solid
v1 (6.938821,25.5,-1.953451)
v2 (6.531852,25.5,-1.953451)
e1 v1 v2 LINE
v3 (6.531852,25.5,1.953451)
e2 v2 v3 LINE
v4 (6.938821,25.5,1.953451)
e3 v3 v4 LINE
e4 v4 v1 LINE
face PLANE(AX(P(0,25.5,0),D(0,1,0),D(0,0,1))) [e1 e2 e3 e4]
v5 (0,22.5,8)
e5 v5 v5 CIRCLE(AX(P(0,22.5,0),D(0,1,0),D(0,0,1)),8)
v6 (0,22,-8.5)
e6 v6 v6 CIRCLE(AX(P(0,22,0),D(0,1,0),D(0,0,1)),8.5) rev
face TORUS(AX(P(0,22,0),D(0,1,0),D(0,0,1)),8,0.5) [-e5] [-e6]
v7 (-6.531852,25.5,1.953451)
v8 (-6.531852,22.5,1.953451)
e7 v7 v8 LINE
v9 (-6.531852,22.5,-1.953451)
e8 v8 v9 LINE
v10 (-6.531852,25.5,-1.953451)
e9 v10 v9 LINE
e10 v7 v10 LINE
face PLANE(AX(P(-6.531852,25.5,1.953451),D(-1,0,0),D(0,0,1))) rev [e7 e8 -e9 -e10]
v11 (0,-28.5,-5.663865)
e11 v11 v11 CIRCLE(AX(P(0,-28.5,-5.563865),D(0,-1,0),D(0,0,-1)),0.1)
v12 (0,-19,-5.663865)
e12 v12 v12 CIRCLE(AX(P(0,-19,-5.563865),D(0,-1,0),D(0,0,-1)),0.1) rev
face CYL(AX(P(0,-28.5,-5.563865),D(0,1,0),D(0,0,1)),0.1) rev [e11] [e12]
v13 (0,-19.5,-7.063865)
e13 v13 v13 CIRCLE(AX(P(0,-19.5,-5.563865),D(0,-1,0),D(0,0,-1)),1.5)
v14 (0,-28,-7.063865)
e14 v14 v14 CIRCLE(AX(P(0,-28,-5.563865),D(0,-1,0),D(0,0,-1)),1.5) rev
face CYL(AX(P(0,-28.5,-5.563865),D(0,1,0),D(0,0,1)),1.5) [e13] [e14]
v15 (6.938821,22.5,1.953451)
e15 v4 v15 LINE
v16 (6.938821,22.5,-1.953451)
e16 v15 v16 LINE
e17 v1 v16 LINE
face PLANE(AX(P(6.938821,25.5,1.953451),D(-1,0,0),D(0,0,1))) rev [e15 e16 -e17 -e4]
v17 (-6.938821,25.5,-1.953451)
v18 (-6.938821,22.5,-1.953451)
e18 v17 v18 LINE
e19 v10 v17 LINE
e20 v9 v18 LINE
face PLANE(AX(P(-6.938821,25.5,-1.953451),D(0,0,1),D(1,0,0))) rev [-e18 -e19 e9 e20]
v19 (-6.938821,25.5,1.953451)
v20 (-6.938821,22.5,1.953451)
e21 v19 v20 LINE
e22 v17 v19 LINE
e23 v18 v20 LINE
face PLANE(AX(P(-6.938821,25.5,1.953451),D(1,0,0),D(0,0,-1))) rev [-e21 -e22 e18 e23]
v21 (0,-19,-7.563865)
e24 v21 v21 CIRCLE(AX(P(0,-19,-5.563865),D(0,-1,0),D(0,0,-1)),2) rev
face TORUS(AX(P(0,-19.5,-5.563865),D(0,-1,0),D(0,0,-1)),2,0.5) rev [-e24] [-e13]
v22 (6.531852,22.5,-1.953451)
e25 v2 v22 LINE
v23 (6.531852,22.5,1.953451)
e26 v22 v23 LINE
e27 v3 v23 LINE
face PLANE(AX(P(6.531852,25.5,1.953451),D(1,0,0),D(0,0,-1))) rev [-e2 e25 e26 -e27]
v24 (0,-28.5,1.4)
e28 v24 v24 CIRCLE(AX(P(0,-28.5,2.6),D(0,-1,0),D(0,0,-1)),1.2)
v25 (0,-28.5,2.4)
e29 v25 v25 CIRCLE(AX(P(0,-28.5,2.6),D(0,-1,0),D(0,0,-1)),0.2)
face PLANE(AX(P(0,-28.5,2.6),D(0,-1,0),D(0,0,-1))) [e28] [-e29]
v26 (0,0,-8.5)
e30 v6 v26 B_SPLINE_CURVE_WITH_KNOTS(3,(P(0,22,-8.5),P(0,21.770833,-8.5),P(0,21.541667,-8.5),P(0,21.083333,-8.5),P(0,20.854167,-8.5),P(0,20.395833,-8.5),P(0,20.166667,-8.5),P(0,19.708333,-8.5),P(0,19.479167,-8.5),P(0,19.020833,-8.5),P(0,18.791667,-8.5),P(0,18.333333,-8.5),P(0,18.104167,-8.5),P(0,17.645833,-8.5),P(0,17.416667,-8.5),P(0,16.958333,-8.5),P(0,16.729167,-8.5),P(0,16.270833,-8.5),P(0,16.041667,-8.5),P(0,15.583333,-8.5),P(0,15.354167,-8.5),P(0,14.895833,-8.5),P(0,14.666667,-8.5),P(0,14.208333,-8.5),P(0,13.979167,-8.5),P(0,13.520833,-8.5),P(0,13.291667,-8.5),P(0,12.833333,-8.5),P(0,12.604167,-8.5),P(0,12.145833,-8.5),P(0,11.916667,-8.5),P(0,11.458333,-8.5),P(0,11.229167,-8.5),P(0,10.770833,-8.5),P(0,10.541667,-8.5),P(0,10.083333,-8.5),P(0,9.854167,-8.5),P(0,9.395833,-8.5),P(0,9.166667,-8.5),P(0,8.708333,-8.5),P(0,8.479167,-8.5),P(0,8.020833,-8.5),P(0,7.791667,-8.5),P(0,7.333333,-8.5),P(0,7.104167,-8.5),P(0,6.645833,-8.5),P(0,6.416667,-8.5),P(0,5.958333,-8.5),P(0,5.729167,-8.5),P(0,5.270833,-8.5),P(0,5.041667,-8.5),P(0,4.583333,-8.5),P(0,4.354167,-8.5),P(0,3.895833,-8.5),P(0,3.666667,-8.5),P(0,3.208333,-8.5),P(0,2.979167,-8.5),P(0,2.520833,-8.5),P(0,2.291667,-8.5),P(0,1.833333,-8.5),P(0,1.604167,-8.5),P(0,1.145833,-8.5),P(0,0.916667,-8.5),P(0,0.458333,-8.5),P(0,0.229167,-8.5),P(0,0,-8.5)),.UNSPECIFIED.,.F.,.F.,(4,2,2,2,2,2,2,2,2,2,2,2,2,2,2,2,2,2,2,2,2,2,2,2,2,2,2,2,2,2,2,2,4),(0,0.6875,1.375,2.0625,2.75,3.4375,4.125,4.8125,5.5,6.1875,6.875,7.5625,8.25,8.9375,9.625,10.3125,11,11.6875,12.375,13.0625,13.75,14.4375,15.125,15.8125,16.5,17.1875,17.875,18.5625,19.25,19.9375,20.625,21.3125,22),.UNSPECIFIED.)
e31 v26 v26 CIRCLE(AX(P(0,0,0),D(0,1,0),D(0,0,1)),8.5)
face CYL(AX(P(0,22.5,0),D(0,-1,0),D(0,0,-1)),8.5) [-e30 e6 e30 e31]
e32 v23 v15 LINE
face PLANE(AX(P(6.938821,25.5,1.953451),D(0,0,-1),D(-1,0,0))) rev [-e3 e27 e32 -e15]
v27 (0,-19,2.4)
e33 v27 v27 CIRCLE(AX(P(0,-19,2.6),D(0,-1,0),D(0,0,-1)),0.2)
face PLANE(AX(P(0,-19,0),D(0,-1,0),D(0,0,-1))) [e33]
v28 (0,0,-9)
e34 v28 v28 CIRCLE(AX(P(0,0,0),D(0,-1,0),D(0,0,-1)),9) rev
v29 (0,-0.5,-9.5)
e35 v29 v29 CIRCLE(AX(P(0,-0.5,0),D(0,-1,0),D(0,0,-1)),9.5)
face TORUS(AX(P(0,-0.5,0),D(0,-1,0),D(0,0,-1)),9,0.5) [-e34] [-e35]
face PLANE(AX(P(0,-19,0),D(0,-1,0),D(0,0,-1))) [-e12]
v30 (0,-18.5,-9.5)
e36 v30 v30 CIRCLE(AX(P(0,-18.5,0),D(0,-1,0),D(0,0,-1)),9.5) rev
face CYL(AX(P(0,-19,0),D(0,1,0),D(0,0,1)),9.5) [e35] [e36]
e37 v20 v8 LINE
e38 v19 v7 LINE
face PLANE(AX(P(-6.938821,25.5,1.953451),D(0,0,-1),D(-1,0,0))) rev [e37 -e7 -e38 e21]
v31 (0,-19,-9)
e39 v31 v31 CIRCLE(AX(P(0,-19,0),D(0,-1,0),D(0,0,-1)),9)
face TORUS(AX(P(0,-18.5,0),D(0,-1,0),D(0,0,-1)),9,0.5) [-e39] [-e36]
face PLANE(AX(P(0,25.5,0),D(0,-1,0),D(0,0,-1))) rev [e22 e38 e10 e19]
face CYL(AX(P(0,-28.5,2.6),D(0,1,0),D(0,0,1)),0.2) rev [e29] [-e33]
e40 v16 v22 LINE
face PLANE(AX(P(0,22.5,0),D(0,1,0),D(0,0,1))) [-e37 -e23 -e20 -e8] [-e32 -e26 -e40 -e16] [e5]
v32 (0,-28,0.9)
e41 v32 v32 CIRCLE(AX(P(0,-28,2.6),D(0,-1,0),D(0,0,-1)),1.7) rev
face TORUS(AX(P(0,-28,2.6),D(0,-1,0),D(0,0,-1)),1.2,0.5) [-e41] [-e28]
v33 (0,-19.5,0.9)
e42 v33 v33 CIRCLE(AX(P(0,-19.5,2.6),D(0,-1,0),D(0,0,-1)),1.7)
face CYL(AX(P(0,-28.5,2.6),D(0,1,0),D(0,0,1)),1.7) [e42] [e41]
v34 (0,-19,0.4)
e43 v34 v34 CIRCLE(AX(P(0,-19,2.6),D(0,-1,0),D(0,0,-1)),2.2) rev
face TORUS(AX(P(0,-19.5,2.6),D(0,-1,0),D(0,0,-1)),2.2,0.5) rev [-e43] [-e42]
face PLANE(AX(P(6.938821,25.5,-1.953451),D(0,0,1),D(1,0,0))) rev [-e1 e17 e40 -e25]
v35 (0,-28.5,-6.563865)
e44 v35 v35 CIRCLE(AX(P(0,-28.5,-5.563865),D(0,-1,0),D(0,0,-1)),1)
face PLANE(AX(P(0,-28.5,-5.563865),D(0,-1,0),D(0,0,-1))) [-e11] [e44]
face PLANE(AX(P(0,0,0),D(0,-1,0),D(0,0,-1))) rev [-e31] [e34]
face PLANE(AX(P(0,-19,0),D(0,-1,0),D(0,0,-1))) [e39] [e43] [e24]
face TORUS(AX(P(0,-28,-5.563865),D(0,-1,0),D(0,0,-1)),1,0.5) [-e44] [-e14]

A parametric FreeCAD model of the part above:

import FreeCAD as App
import Part
import Sketcher
from FreeCAD import Vector


def edges_at(feature, points):
    """Names of the edges that pass closest to the given points."""
    edges = feature.Shape.Edges
    near = lambda p: min(range(len(edges)), key=lambda i: edges[i].distToShape(Part.Vertex(*p))[0])
    return sorted({f"Edge{near(p) + 1}" for p in points})

doc = App.newDocument("Part")
body = doc.addObject("PartDesign::Body", "Body")

# Sketch on XZ plane
sketch1 = body.newObject("Sketcher::SketchObject", "Sketch")
sketch1.AttachmentSupport = (doc.getObject("XZ_Plane"), [""])
sketch1.MapMode = "FlatFace"
sketch1.addGeometry(Part.Circle(Vector(0, 0, 0), Vector(0, 0, 1), 8), False)
sketch1.addConstraint([
    Sketcher.Constraint("Coincident", 0, 3, -1, 1),
    Sketcher.Constraint("Diameter", 0, 17.0),
])
pad1 = body.newObject("PartDesign::Pad", "Pad")
pad1.Profile = sketch1
pad1.Length = 22.5
pad1.Reversed = True

# Sketch on XZ plane
sketch2 = body.newObject("Sketcher::SketchObject", "Sketch001")
sketch2.AttachmentSupport = (doc.getObject("XZ_Plane"), [""])
sketch2.MapMode = "FlatFace"
sketch2.addGeometry(Part.Circle(Vector(0, 0, 0), Vector(0, 0, 1), 10), False)
sketch2.addConstraint([
    Sketcher.Constraint("Coincident", 0, 3, -1, 1),
    Sketcher.Constraint("Diameter", 0, 19.0),
])
pad2 = body.newObject("PartDesign::Pad", "Pad001")
pad2.Profile = sketch2
pad2.Length = 19

# Sketch on XZ plane
sketch3 = body.newObject("Sketcher::SketchObject", "Sketch002")
sketch3.AttachmentSupport = (doc.getObject("XZ_Plane"), [""])
sketch3.MapMode = "FlatFace"
sketch3.AttachmentOffset = App.Placement(Vector(0, 0, 19), App.Rotation())
sketch3.addGeometry([
    Part.Circle(Vector(0, 2.6, 0), Vector(0, 0, 1), 1.7),
    Part.Circle(Vector(0, 2.6, 0), Vector(0, 0, 1), 0.2),
    Part.Circle(Vector(0, -5.56, 0), Vector(0, 0, 1), 1.5),
    Part.Circle(Vector(0, -5.56, 0), Vector(0, 0, 1), 0.1),
], False)
sketch3.addConstraint([
    Sketcher.Constraint("Coincident", 1, 3, 0, 3),
    Sketcher.Constraint("Coincident", 3, 3, 2, 3),
    Sketcher.Constraint("PointOnObject", 0, 3, -2),
    Sketcher.Constraint("PointOnObject", 2, 3, -2),
    Sketcher.Constraint("Diameter", 2, 3.0),
    Sketcher.Constraint("Diameter", 0, 3.4),
    Sketcher.Constraint("Diameter", 1, 0.4),
    Sketcher.Constraint("Diameter", 3, 0.2),
    Sketcher.Constraint("DistanceY", -1, 1, 0, 3, 2.6),
    Sketcher.Constraint("DistanceY", 2, 3, -1, 1, 5.563865),
])
pad3 = body.newObject("PartDesign::Pad", "Pad002")
pad3.Profile = sketch3
pad3.Length = 9.5

# Sketch on XZ plane
sketch4 = body.newObject("Sketcher::SketchObject", "Sketch003")
sketch4.AttachmentSupport = (doc.getObject("XZ_Plane"), [""])
sketch4.MapMode = "FlatFace"
sketch4.AttachmentOffset = App.Placement(Vector(0, 0, -22.5), App.Rotation())
sketch4.addGeometry([
    Part.LineSegment(Vector(-6.94, -1.95, 0), Vector(-6.94, 1.95, 0)),  # 0
    Part.LineSegment(Vector(-6.94, 1.95, 0), Vector(-6.53, 1.95, 0)),  # 1
    Part.LineSegment(Vector(-6.53, 1.95, 0), Vector(-6.53, -1.95, 0)),  # 2
    Part.LineSegment(Vector(-6.53, -1.95, 0), Vector(-6.94, -1.95, 0)),  # 3
    Part.LineSegment(Vector(6.53, -1.95, 0), Vector(6.53, 1.95, 0)),  # 4
    Part.LineSegment(Vector(6.53, 1.95, 0), Vector(6.94, 1.95, 0)),  # 5
    Part.LineSegment(Vector(6.94, 1.95, 0), Vector(6.94, -1.95, 0)),  # 6
    Part.LineSegment(Vector(6.94, -1.95, 0), Vector(6.53, -1.95, 0)),  # 7
], False)
sketch4.addConstraint([
    Sketcher.Constraint("Coincident", 0, 2, 1, 1),
    Sketcher.Constraint("Coincident", 1, 2, 2, 1),
    Sketcher.Constraint("Coincident", 2, 2, 3, 1),
    Sketcher.Constraint("Coincident", 3, 2, 0, 1),
    Sketcher.Constraint("Coincident", 4, 2, 5, 1),
    Sketcher.Constraint("Coincident", 5, 2, 6, 1),
    Sketcher.Constraint("Coincident", 6, 2, 7, 1),
    Sketcher.Constraint("Coincident", 7, 2, 4, 1),
    Sketcher.Constraint("Vertical", 0),
    Sketcher.Constraint("Horizontal", 1),
    Sketcher.Constraint("Vertical", 2),
    Sketcher.Constraint("Horizontal", 3),
    Sketcher.Constraint("Vertical", 4),
    Sketcher.Constraint("Horizontal", 5),
    Sketcher.Constraint("Vertical", 6),
    Sketcher.Constraint("Horizontal", 7),
    Sketcher.Constraint("Symmetric", 2, 2, 4, 2, -1, 1),
    Sketcher.Constraint("Symmetric", 0, 2, 6, 2, -1, 1),
    Sketcher.Constraint("Horizontal", 1, 2, 4, 2),
    Sketcher.Constraint("DistanceX", 1, 1, 1, 2, 0.406969),
    Sketcher.Constraint("DistanceY", 0, 1, 0, 2, 3.906902),
    Sketcher.Constraint("DistanceX", 0, 2, -1, 1, 6.938821),
])
pad4 = body.newObject("PartDesign::Pad", "Pad003")
pad4.Profile = sketch4
pad4.Length = 3
pad4.Reversed = True
doc.recompute()

fillet = body.newObject("PartDesign::Fillet", "Fillet")
fillet.Base = (pad4, edges_at(pad4, [
    (0, -19, 4.3),
    (0, -28.5, 4.3),
    (0, -28.5, -4.064),
    (0, -19, -4.064),
    (0, 22.5, 8.5),
    (0, 0, 9.5),
    (0, -19, 9.5),
]))
fillet.Radius = 0.5

doc.recompute()
